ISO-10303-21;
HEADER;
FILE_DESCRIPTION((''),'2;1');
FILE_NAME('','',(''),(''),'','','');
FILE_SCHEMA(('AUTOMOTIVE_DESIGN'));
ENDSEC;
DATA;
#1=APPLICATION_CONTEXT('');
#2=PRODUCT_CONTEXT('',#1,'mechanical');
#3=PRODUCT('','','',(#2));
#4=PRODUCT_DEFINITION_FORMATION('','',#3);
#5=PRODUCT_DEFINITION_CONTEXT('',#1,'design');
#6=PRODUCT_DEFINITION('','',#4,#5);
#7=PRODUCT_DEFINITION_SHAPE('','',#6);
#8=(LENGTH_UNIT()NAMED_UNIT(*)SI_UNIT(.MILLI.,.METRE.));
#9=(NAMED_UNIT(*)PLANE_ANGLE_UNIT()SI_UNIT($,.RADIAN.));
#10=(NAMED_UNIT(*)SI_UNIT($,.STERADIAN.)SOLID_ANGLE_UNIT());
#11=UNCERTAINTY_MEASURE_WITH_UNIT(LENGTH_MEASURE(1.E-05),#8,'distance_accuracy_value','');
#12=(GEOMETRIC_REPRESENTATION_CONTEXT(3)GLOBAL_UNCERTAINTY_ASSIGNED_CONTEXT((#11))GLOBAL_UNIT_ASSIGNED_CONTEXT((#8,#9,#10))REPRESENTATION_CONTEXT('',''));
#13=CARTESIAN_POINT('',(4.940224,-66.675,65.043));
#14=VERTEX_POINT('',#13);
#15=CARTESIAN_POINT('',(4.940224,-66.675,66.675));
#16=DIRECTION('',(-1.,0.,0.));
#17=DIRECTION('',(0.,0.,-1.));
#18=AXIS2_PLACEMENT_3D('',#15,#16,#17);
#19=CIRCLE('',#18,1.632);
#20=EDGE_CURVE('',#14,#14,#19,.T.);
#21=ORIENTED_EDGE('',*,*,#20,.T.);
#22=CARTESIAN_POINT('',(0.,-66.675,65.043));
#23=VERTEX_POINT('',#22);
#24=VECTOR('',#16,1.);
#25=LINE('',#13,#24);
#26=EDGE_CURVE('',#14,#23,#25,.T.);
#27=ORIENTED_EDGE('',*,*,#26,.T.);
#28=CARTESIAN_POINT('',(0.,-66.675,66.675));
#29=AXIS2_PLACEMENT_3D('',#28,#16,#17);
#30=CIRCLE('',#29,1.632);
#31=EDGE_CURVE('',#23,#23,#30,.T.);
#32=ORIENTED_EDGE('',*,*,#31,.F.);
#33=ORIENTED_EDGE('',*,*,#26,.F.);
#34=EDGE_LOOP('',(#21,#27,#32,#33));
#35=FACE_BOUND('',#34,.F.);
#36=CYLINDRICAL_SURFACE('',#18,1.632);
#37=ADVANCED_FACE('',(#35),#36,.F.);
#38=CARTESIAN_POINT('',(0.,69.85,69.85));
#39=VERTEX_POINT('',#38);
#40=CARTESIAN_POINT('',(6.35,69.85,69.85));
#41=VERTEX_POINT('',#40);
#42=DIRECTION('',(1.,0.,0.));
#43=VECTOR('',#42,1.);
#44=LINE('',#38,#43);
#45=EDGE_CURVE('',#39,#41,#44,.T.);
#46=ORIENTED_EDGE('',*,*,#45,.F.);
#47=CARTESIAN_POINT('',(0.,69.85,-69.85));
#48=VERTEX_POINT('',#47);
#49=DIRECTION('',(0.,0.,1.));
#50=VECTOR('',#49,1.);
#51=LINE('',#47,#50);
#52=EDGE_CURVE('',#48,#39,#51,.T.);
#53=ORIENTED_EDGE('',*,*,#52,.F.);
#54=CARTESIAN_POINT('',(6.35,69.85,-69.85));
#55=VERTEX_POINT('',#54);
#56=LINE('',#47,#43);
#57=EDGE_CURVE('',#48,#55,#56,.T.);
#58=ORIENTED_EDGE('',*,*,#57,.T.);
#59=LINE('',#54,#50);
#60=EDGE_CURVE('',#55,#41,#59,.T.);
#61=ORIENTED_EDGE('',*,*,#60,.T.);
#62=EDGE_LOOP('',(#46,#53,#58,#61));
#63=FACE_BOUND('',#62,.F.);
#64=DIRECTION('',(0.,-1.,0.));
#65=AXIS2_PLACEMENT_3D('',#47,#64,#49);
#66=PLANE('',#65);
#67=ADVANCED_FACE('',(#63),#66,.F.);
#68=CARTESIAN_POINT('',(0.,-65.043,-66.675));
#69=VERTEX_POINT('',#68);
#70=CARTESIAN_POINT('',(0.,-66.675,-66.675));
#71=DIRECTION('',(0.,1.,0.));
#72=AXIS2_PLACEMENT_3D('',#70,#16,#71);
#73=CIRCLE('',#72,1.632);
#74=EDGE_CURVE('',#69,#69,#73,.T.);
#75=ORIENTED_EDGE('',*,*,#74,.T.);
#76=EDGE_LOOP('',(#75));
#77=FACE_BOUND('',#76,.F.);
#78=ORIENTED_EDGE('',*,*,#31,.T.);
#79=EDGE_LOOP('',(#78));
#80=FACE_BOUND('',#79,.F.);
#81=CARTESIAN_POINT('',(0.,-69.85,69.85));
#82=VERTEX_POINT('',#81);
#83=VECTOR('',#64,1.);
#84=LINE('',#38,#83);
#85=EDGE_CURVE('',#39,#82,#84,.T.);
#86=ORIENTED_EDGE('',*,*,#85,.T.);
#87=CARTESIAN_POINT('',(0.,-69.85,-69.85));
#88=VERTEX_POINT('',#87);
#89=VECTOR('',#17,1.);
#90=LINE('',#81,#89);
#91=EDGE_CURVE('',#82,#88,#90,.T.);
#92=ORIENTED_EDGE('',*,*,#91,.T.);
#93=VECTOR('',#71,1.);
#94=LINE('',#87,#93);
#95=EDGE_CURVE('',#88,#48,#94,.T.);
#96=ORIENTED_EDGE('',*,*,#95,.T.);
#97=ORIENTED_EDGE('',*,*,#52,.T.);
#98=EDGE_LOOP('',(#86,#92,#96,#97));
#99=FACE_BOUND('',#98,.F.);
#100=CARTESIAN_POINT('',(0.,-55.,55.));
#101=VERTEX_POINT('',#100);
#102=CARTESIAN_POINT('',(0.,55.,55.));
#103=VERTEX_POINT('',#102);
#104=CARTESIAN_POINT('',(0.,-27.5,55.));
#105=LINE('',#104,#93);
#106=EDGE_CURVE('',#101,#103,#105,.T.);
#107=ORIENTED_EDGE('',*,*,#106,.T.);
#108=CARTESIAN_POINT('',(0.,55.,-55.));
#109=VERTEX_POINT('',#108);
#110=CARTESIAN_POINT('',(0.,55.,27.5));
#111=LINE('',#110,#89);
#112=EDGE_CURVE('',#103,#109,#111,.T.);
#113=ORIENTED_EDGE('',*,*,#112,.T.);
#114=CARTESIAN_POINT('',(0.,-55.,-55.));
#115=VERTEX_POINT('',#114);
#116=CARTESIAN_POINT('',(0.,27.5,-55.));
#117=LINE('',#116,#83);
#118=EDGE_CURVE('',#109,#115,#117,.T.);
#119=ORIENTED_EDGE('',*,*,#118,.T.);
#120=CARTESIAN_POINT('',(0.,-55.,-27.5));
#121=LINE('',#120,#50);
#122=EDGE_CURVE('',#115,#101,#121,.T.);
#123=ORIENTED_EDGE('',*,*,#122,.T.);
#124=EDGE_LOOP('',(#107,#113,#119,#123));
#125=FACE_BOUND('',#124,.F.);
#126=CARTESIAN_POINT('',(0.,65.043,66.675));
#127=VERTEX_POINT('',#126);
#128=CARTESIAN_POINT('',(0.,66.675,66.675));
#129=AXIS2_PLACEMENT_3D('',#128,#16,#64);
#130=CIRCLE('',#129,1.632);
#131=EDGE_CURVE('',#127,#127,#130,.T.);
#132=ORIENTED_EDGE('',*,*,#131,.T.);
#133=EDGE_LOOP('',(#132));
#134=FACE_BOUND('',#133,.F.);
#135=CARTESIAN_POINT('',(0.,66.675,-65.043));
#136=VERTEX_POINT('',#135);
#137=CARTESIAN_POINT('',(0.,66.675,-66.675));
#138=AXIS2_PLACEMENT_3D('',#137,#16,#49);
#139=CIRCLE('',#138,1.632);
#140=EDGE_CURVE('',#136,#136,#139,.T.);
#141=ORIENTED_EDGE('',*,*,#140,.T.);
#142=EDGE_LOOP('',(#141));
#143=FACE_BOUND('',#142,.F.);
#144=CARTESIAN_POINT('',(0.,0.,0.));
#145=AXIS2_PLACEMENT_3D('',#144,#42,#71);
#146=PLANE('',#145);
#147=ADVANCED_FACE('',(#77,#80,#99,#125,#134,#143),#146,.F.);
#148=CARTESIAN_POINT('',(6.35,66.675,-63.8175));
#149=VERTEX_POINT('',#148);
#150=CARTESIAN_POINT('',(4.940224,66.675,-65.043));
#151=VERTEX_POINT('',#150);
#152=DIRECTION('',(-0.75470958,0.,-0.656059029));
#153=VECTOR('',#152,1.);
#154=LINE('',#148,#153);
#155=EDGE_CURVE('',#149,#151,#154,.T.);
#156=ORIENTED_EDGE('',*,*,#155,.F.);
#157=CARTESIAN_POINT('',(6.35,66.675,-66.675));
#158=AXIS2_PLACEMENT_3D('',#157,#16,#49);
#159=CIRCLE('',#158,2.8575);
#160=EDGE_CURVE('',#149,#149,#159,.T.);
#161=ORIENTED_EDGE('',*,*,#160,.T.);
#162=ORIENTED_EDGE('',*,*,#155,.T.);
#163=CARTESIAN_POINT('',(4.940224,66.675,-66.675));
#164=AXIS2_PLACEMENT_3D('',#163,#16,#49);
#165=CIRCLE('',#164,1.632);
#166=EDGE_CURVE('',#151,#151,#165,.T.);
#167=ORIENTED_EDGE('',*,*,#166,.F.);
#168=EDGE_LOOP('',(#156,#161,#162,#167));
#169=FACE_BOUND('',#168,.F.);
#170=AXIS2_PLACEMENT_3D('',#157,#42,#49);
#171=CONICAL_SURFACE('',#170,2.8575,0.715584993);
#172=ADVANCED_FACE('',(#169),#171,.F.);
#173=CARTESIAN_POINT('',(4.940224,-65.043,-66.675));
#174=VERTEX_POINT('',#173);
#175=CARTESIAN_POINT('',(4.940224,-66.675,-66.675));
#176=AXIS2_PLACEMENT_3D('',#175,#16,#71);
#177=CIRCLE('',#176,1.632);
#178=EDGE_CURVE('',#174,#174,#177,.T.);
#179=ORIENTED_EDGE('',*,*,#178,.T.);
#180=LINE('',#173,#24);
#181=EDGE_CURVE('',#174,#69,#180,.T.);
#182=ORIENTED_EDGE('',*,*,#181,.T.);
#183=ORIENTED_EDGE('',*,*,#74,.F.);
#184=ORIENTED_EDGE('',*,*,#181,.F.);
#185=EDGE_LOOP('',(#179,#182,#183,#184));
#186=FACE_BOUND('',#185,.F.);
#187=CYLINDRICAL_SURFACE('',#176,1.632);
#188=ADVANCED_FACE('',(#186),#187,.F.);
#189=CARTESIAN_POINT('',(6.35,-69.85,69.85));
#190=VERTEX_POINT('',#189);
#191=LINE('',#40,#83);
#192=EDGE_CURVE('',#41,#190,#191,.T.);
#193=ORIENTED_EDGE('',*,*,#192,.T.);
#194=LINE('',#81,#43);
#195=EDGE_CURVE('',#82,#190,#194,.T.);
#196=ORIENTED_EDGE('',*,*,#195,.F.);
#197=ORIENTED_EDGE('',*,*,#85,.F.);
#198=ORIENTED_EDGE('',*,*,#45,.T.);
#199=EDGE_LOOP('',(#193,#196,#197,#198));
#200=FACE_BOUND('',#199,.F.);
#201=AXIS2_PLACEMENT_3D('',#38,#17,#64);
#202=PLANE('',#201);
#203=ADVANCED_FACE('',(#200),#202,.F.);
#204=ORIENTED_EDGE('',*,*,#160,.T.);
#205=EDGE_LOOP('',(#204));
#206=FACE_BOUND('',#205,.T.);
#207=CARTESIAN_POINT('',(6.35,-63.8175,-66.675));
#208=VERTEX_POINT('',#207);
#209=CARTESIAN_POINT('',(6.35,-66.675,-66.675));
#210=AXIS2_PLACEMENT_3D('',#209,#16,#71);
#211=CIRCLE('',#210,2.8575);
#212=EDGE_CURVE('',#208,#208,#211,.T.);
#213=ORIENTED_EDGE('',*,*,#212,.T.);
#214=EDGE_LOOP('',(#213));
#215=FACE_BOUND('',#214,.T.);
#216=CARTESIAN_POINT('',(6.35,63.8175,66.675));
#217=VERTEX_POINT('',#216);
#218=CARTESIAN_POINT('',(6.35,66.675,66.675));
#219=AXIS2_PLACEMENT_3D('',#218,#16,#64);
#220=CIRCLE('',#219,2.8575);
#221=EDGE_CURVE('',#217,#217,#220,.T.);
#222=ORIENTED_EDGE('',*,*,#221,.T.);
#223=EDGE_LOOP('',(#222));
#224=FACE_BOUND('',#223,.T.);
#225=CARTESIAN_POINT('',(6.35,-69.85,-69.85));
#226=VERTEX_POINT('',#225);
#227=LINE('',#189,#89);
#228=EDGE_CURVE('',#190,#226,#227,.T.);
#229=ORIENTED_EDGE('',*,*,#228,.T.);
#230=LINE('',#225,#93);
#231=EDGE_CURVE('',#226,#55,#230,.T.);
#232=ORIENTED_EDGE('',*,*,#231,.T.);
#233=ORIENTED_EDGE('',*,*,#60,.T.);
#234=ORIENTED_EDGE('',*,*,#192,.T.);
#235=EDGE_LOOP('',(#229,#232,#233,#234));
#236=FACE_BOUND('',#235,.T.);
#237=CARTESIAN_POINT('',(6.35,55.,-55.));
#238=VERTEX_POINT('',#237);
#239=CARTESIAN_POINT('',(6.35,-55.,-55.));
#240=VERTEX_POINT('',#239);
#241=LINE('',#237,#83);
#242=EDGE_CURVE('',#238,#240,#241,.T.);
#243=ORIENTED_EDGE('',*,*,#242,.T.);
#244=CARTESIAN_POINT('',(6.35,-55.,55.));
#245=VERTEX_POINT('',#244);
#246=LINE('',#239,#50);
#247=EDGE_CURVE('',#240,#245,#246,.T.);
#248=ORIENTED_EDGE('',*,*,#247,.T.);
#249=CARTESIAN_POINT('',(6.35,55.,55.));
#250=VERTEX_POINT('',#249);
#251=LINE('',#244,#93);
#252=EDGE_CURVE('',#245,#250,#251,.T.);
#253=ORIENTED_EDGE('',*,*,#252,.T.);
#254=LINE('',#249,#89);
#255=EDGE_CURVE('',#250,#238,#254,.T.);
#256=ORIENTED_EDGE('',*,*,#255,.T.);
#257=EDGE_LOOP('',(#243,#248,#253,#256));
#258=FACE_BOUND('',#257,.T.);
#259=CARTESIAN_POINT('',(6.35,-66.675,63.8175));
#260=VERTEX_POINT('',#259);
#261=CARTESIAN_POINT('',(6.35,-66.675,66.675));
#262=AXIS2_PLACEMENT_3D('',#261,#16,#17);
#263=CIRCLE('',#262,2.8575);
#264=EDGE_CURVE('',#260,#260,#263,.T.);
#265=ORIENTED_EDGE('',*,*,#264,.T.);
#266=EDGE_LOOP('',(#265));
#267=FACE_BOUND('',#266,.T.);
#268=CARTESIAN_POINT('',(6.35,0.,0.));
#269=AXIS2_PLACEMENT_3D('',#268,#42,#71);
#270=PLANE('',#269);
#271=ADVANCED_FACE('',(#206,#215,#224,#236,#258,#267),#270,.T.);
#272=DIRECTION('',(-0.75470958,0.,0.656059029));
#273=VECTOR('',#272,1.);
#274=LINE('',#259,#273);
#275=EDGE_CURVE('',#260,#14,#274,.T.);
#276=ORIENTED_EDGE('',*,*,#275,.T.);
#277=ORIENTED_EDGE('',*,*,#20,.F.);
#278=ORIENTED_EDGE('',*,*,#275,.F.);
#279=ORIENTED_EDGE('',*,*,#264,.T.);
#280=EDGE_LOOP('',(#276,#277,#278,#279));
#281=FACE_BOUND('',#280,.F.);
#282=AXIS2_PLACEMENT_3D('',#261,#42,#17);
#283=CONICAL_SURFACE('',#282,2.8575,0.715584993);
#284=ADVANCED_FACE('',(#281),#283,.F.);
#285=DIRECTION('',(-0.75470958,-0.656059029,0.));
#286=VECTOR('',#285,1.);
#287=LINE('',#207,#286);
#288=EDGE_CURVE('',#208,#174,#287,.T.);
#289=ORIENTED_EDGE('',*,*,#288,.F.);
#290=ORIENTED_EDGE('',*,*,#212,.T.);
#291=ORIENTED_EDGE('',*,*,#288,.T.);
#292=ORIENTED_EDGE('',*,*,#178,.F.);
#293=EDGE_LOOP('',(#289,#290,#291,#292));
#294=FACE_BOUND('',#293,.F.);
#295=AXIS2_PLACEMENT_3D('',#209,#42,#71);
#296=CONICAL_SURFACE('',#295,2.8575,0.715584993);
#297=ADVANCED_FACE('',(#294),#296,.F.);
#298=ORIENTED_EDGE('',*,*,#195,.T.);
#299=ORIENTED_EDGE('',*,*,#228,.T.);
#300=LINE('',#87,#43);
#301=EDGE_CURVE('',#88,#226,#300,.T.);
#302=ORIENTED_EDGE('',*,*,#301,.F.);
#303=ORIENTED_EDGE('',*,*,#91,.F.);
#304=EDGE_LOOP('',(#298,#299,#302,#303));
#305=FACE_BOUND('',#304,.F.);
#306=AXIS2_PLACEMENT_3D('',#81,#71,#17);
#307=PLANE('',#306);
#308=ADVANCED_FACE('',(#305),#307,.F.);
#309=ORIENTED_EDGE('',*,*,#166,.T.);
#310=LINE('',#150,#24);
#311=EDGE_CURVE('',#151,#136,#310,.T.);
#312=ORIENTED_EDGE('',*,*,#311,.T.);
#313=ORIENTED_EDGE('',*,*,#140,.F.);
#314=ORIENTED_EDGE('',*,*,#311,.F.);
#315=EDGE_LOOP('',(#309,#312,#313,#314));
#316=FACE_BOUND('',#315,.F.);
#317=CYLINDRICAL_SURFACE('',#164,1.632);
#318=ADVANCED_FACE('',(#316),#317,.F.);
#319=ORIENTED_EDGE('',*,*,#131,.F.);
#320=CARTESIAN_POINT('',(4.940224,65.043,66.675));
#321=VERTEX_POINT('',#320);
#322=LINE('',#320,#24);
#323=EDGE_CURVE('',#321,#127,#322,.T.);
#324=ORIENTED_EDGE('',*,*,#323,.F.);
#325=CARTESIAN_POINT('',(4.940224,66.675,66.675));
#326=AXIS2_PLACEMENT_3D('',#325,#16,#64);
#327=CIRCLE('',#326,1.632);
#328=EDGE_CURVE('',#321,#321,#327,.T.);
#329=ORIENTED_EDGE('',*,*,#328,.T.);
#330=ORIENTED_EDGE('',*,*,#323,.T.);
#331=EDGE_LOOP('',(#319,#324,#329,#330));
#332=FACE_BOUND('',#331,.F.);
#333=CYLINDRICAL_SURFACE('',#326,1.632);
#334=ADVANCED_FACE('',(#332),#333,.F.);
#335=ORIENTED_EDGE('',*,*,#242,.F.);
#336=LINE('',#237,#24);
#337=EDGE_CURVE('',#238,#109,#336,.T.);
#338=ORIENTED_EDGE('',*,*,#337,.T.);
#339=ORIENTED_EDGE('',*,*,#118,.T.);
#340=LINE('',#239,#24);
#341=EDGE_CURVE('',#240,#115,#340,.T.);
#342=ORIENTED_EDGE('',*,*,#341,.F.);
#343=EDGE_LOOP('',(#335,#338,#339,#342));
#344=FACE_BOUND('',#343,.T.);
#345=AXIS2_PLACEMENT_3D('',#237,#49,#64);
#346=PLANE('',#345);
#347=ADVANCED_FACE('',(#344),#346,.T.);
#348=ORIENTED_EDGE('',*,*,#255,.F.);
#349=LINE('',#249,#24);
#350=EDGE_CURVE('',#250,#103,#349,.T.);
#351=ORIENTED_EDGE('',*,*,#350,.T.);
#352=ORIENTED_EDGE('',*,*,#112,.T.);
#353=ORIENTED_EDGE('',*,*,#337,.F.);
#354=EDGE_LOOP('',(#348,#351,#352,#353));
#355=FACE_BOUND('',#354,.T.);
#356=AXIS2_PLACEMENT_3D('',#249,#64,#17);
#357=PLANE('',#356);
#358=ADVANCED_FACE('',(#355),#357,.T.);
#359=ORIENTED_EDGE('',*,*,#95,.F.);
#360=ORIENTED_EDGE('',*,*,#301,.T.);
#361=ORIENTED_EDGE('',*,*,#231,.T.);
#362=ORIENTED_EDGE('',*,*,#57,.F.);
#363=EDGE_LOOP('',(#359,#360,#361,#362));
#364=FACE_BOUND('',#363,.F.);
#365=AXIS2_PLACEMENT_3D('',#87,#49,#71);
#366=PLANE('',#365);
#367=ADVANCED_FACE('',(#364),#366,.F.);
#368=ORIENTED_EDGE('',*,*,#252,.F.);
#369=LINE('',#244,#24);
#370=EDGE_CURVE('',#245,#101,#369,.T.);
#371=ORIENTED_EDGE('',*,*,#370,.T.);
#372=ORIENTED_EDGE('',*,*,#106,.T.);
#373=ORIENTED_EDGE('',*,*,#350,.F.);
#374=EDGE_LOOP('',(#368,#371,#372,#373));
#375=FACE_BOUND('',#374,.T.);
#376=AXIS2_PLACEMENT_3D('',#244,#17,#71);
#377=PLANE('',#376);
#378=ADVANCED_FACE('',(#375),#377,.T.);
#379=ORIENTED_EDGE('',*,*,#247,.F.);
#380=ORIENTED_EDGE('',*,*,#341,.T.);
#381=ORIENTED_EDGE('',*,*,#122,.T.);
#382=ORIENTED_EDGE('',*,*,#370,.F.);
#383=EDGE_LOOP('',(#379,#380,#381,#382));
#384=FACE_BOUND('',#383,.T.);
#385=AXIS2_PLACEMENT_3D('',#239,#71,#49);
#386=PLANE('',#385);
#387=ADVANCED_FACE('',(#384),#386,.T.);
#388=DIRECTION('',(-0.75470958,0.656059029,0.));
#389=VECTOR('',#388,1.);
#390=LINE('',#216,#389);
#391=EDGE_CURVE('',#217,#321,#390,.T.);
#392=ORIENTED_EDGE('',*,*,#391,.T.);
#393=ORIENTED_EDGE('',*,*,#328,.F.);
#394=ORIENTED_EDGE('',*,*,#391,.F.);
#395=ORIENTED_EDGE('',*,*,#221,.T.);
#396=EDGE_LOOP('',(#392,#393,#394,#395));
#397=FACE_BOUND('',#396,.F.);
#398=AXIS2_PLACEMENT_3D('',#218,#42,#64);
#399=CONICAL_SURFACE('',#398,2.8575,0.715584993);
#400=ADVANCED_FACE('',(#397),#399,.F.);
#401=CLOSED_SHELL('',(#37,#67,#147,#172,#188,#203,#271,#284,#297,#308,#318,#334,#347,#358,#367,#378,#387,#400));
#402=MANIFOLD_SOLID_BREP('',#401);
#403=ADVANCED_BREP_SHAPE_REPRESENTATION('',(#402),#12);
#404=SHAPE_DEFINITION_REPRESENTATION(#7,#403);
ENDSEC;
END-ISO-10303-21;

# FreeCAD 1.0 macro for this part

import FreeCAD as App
import Part
import Sketcher

V = App.Vector
Q = App.Units.Quantity


def add_polygon(sketch, points):
    """Adds a closed chain of lines whose ends are joined by coincident constraints."""
    first, n = sketch.GeometryCount, len(points)
    for a, b in zip(points, points[1:] + points[:1]):
        sketch.addGeometry(Part.LineSegment(App.Vector(*a, 0), App.Vector(*b, 0)), False)
    for i in range(n):
        sketch.addConstraint(Sketcher.Constraint("Coincident", first + i, 2, first + (i + 1) % n, 1))

doc = App.newDocument("Part")
body = doc.addObject("PartDesign::Body", "Body")

# Sketch on YZ plane
sketch1 = body.newObject("Sketcher::SketchObject", "Sketch")
sketch1.AttachmentSupport = (doc.getObject("YZ_Plane"), [""])
sketch1.MapMode = "FlatFace"
add_polygon(sketch1, [(-69.85, 69.85), (-69.85, -69.85), (69.85, -69.85), (69.85, 69.85)])  # lines 0-3
sketch1.addConstraint(Sketcher.Constraint("Vertical", 0))
sketch1.addConstraint(Sketcher.Constraint("Horizontal", 1))
sketch1.addConstraint(Sketcher.Constraint("Vertical", 2))
sketch1.addConstraint(Sketcher.Constraint("Horizontal", 3))
sketch1.addConstraint(Sketcher.Constraint("Symmetric", 0, 2, 2, 2, -1, 1))
sketch1.addConstraint(Sketcher.Constraint("Equal", 3, 0))
sketch1.addConstraint(Sketcher.Constraint("DistanceX", 1, 1, 1, 2, Q("5.5 in")))
pad1 = body.newObject("PartDesign::Pad", "Pad")
pad1.Profile = sketch1
pad1.Length = Q("0.25 in")

# Sketch on YZ plane
sketch2 = body.newObject("Sketcher::SketchObject", "Sketch001")
sketch2.AttachmentSupport = (doc.getObject("YZ_Plane"), [""])
sketch2.MapMode = "FlatFace"
sketch2.AttachmentOffset = App.Placement(V(0, 0, 0.25 * 25.4), App.Rotation())
sketch2.addGeometry(Part.Circle(V(-66.675, 66.675, 0), V(0, 0, 1), 1.632), False)
sketch2.addConstraint(Sketcher.Constraint("Diameter", 0, Q("0.1285 in")))
sketch2.addConstraint(Sketcher.Constraint("DistanceX", 0, 3, -1, 1, Q("2.625 in")))
sketch2.addConstraint(Sketcher.Constraint("DistanceY", -1, 1, 0, 3, Q("2.625 in")))
doc.recompute()
hole = body.newObject("PartDesign::Hole", "Hole")
hole.Profile = sketch2
hole.ThreadType = "None"
hole.Diameter = Q("0.1285039 in")
hole.DepthType = "ThroughAll"
hole.HoleCutType = "Countersink"
hole.HoleCutDiameter = Q("0.225 in")
hole.HoleCutCountersinkAngle = 82
doc.recompute()

polarpattern = body.newObject("PartDesign::PolarPattern", "PolarPattern")
polarpattern.Originals = [hole]
polarpattern.Axis = (doc.getObject("X_Axis"), [""])
polarpattern.Angle = 360
polarpattern.Occurrences = 4
body.Tip = polarpattern

# Sketch on YZ plane
sketch3 = body.newObject("Sketcher::SketchObject", "Sketch002")
sketch3.AttachmentSupport = (doc.getObject("YZ_Plane"), [""])
sketch3.MapMode = "FlatFace"
sketch3.AttachmentOffset = App.Placement(V(0, 0, 0.25 * 25.4), App.Rotation())
add_polygon(sketch3, [(-55, 55), (-55, -55), (55, -55), (55, 55)])  # lines 0-3
sketch3.addConstraint(Sketcher.Constraint("Vertical", 0))
sketch3.addConstraint(Sketcher.Constraint("Horizontal", 1))
sketch3.addConstraint(Sketcher.Constraint("Vertical", 2))
sketch3.addConstraint(Sketcher.Constraint("Horizontal", 3))
sketch3.addConstraint(Sketcher.Constraint("Symmetric", 0, 2, 2, 2, -1, 1))
sketch3.addConstraint(Sketcher.Constraint("Equal", 3, 0))
sketch3.addConstraint(Sketcher.Constraint("DistanceX", 1, 1, 1, 2, Q("4.3307 in")))
pocket1 = body.newObject("PartDesign::Pocket", "Pocket")
pocket1.Profile = sketch3
pocket1.Type = "ThroughAll"

doc.recompute()
